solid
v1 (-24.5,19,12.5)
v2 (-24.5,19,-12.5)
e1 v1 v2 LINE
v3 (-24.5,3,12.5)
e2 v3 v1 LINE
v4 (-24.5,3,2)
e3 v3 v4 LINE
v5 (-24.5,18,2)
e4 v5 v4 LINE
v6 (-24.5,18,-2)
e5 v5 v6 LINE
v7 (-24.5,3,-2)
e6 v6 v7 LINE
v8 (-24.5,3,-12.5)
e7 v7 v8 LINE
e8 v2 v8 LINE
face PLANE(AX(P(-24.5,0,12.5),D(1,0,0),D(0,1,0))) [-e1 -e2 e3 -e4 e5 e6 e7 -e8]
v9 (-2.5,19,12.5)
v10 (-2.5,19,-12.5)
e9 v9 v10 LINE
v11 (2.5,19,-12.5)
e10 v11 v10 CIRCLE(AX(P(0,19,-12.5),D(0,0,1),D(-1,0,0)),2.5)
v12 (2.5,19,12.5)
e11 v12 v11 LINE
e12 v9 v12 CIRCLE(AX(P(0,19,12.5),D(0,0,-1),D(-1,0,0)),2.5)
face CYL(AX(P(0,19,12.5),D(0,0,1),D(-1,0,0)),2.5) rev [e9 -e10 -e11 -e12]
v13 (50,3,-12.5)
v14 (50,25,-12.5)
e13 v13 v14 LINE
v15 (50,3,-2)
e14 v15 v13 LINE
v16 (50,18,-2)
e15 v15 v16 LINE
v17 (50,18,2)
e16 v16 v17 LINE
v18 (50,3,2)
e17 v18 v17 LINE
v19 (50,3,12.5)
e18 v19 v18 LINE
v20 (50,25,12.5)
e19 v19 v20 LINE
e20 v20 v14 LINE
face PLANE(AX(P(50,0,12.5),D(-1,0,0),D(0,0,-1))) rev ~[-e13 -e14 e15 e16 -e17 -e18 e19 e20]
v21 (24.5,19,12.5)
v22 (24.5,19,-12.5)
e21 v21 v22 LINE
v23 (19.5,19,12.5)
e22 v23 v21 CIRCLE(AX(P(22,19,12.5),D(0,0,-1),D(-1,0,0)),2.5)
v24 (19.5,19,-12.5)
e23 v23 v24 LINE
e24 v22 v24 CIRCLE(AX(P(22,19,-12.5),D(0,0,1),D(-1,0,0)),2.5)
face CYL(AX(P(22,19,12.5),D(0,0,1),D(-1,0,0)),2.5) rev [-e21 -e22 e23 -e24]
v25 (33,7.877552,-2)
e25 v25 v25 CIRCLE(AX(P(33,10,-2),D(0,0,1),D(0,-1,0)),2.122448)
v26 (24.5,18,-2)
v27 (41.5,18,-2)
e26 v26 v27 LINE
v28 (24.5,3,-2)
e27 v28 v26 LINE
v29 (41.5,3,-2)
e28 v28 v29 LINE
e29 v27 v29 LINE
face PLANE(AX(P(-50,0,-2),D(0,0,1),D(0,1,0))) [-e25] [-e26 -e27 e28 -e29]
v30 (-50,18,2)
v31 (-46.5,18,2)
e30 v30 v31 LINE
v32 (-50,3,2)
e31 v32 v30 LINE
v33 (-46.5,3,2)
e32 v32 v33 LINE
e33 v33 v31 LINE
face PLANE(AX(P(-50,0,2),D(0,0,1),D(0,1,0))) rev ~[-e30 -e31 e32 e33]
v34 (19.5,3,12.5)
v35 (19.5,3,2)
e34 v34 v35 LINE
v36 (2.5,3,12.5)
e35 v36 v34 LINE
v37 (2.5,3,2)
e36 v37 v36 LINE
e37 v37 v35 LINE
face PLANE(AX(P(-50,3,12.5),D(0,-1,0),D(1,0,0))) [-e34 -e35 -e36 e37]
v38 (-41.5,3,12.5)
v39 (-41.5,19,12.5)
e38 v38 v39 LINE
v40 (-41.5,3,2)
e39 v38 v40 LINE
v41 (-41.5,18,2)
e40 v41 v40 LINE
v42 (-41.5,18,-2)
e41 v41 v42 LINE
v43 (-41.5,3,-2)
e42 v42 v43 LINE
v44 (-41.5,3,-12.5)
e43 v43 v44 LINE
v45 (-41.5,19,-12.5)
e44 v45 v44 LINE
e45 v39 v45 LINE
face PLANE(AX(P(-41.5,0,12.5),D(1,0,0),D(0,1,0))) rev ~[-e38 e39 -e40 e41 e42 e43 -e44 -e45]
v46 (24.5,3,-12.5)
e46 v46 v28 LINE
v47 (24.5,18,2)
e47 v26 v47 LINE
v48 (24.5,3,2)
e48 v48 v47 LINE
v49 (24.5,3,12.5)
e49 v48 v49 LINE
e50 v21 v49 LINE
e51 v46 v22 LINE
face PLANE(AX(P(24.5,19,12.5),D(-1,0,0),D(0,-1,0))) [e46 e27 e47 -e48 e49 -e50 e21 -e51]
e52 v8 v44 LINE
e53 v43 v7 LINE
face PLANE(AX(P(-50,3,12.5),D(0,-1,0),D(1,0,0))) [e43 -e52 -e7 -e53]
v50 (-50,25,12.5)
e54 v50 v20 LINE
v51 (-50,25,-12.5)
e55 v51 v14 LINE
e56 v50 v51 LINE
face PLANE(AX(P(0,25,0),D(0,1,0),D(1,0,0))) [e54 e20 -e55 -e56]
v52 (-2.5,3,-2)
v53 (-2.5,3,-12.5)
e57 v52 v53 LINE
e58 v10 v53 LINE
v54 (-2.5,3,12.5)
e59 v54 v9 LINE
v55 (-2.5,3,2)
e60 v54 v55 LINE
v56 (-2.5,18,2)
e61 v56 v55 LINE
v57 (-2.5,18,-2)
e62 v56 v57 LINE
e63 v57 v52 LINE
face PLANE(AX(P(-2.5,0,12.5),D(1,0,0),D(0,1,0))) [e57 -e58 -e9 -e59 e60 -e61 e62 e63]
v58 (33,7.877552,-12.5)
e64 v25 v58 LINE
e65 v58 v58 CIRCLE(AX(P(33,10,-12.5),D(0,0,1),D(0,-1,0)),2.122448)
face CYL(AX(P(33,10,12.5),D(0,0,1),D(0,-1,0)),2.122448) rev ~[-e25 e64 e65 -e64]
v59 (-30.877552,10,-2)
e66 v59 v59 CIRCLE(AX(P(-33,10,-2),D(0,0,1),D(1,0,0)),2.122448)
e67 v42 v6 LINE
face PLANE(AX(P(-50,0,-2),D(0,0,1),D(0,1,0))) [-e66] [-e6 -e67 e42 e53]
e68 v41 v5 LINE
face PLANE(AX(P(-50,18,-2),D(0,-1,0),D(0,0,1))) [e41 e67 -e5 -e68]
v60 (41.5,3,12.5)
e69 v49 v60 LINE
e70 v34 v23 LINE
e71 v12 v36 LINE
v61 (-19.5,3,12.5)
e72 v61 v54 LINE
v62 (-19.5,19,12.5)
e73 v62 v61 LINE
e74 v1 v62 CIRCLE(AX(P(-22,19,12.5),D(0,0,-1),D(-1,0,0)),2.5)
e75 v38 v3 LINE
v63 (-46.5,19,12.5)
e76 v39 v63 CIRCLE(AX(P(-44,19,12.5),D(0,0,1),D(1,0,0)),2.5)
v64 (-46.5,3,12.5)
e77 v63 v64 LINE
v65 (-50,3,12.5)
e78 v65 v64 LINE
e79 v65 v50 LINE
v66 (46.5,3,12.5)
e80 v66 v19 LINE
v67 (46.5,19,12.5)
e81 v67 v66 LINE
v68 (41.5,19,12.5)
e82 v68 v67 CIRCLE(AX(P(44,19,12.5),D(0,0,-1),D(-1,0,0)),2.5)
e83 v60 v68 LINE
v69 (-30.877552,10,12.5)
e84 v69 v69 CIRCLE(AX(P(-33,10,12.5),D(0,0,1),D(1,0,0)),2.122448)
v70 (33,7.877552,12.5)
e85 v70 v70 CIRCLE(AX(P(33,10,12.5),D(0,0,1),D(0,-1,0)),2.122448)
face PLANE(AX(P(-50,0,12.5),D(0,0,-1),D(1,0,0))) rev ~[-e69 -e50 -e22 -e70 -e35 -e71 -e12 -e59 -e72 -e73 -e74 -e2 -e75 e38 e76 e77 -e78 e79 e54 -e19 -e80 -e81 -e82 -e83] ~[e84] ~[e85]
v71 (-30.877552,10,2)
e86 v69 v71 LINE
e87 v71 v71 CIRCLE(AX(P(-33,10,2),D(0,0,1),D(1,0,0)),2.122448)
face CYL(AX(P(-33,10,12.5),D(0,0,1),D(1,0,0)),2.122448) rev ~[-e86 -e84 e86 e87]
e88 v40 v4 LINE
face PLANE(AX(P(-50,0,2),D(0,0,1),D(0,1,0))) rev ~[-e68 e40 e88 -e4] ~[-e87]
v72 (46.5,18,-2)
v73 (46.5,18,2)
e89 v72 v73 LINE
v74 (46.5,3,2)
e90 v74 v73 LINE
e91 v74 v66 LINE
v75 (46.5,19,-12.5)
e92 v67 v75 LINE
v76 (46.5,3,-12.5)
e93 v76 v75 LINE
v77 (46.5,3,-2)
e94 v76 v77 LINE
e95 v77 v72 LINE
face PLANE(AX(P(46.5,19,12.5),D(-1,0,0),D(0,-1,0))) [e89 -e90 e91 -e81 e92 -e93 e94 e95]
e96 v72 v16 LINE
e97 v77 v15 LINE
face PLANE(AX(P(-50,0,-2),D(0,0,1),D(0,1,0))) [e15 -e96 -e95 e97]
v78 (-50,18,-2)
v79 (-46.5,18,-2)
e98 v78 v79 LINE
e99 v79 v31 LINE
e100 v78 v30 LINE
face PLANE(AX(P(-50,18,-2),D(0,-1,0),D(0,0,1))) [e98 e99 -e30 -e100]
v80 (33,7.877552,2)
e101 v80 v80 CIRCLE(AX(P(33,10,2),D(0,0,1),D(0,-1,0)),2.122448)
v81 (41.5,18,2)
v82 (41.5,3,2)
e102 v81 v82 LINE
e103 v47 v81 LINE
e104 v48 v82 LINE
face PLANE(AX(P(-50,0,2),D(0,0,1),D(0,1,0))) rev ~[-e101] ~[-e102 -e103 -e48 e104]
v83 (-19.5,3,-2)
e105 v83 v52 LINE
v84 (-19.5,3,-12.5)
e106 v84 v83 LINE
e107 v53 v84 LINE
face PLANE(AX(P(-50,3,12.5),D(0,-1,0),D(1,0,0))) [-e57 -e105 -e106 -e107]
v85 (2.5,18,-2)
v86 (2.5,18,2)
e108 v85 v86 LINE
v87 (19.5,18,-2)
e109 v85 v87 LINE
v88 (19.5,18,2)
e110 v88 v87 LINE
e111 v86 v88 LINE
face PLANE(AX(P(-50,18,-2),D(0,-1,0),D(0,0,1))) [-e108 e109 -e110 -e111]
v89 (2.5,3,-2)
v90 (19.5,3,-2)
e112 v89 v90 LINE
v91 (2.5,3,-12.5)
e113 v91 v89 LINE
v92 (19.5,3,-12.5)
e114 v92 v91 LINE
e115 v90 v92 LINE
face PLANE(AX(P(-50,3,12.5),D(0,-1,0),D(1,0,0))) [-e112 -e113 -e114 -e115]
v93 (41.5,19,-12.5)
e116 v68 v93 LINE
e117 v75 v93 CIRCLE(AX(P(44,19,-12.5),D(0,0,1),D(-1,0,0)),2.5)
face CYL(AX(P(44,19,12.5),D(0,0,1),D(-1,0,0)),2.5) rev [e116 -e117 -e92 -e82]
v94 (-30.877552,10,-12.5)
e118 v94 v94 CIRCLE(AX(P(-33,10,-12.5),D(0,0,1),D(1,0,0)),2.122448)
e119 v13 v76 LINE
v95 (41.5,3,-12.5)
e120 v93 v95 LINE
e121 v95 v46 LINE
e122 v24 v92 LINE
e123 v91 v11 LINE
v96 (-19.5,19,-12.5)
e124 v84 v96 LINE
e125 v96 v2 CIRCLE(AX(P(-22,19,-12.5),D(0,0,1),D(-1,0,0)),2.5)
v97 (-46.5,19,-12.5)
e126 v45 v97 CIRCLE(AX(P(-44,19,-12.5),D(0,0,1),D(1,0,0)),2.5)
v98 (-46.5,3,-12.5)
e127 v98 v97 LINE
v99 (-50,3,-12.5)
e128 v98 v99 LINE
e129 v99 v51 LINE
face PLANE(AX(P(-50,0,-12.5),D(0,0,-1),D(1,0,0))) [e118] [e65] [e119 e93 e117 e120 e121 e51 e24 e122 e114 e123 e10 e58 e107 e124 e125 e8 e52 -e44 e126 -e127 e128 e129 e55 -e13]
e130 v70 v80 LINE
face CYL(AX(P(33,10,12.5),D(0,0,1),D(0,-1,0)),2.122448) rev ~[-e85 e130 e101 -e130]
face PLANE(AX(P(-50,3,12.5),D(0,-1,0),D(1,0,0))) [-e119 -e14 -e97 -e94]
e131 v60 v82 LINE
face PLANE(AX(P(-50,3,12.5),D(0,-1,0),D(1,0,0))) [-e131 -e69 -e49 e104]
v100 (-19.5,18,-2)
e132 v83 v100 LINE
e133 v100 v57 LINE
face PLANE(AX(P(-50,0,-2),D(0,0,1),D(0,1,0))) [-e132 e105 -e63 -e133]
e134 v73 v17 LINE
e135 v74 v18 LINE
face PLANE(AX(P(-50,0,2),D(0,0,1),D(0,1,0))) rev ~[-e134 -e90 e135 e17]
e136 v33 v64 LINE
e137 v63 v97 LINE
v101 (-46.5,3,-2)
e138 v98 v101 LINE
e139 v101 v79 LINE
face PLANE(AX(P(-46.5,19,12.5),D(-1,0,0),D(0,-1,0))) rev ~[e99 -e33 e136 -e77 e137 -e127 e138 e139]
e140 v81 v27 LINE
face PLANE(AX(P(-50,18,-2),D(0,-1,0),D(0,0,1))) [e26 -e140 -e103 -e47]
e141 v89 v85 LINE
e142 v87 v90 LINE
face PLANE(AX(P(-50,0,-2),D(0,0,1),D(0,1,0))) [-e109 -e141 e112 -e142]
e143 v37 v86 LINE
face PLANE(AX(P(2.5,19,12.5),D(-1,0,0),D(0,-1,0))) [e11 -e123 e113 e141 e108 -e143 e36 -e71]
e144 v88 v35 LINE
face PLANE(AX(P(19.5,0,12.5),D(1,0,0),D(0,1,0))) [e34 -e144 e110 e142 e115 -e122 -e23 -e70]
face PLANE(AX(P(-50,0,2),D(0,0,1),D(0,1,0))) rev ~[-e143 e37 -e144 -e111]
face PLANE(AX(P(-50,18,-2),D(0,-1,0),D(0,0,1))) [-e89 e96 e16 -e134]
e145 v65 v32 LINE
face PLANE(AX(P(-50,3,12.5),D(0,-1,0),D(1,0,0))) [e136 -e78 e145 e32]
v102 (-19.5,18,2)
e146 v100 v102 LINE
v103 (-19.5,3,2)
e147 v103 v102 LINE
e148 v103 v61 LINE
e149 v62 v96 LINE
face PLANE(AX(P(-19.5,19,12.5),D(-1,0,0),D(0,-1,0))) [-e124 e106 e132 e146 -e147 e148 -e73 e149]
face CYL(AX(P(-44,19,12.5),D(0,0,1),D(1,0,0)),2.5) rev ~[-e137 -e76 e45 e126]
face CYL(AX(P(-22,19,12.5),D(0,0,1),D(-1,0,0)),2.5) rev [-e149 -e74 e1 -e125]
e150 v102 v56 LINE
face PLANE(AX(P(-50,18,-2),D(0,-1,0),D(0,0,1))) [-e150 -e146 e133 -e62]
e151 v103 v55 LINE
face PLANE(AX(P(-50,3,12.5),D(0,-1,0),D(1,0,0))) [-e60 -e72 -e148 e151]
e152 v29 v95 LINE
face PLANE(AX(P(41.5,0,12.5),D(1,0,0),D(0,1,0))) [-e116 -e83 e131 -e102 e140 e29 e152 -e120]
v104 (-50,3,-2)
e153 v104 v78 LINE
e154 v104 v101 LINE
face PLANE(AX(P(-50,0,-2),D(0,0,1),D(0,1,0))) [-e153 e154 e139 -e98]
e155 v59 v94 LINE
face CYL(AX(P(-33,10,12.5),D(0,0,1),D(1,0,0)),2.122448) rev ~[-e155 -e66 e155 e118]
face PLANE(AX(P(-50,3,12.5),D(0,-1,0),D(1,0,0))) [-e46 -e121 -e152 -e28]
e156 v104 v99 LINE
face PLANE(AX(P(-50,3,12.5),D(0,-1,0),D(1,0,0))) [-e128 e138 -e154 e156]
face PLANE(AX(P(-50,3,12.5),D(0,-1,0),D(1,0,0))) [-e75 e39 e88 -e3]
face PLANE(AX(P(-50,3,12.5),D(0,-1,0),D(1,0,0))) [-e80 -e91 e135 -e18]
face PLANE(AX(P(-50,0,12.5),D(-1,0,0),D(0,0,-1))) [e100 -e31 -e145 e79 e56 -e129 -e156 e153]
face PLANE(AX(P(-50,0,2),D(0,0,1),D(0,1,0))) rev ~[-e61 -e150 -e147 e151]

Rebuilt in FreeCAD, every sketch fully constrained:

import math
import FreeCAD as App
import Part
import Sketcher
Q = App.Units.Quantity


def add_polygon(sketch, points):
    """Adds a closed chain of lines whose ends are joined by coincident constraints."""
    first, n = sketch.GeometryCount, len(points)
    for a, b in zip(points, points[1:] + points[:1]):
        sketch.addGeometry(Part.LineSegment(App.Vector(*a, 0), App.Vector(*b, 0)), False)
    for i in range(n):
        sketch.addConstraint(Sketcher.Constraint("Coincident", first + i, 2, first + (i + 1) % n, 1))

doc = App.newDocument("Part")
body = doc.addObject("PartDesign::Body", "Body")

# Sketch on XZ plane
sketch1 = body.newObject("Sketcher::SketchObject", "Sketch")
sketch1.AttachmentSupport = (doc.getObject("XZ_Plane"), [""])
sketch1.MapMode = "FlatFace"
add_polygon(sketch1, [(-50, -12), (-50, 12), (50, 12), (50, -12)])  # lines 0-3
sketch1.addConstraint(Sketcher.Constraint("Vertical", 0))
sketch1.addConstraint(Sketcher.Constraint("Horizontal", 1))
sketch1.addConstraint(Sketcher.Constraint("Vertical", 2))
sketch1.addConstraint(Sketcher.Constraint("Horizontal", 3))
sketch1.addConstraint(Sketcher.Constraint("Symmetric", 0, 2, 2, 2, -1, 1))
sketch1.addConstraint(Sketcher.Constraint("DistanceX", 1, 1, 1, 2, Q("100 mm")))
sketch1.addConstraint(Sketcher.Constraint("DistanceY", 0, 1, 0, 2, Q("25 mm")))
pad1 = body.newObject("PartDesign::Pad", "Pad")
pad1.Profile = sketch1
pad1.Length = 25
pad1.Reversed = True

# Sketch on XY plane
sketch2 = body.newObject("Sketcher::SketchObject", "Sketch001")
sketch2.AttachmentSupport = (doc.getObject("XY_Plane"), [""])
sketch2.MapMode = "FlatFace"
sketch2.AttachmentOffset = App.Placement(App.Vector(0, 0, 12.5), App.Rotation())
sketch2.addGeometry(Part.LineSegment(App.Vector(-19.5, 0, 0), App.Vector(-19.5, 19, 0)), False)
sketch2.addGeometry(Part.ArcOfCircle(Part.Circle(App.Vector(-22, 19, 0), App.Vector(0, 0, 1), 2.5), math.radians(0), math.radians(180)), False)
sketch2.addGeometry(Part.LineSegment(App.Vector(-24.5, 19, 0), App.Vector(-24.5, 0, 0)), False)
sketch2.addGeometry(Part.LineSegment(App.Vector(-24.5, 0, 0), App.Vector(-19.5, 0, 0)), False)
sketch2.addGeometry(Part.LineSegment(App.Vector(-46.5, 19, 0), App.Vector(-46.5, 0, 0)), False)
sketch2.addGeometry(Part.LineSegment(App.Vector(-46.5, 0, 0), App.Vector(-41.5, 0, 0)), False)
sketch2.addGeometry(Part.LineSegment(App.Vector(-41.5, 0, 0), App.Vector(-41.5, 19, 0)), False)
sketch2.addGeometry(Part.ArcOfCircle(Part.Circle(App.Vector(-44, 19, 0), App.Vector(0, 0, 1), 2.5), math.radians(0), math.radians(180)), False)
sketch2.addGeometry(Part.LineSegment(App.Vector(2.5, 0, 0), App.Vector(2.5, 19, 0)), False)
sketch2.addGeometry(Part.ArcOfCircle(Part.Circle(App.Vector(0, 19, 0), App.Vector(0, 0, 1), 2.5), math.radians(0), math.radians(180)), False)
sketch2.addGeometry(Part.LineSegment(App.Vector(-2.5, 19, 0), App.Vector(-2.5, 0, 0)), False)
sketch2.addGeometry(Part.LineSegment(App.Vector(-2.5, 0, 0), App.Vector(2.5, 0, 0)), False)
sketch2.addGeometry(Part.LineSegment(App.Vector(24.5, 0, 0), App.Vector(24.5, 19, 0)), False)
sketch2.addGeometry(Part.ArcOfCircle(Part.Circle(App.Vector(22, 19, 0), App.Vector(0, 0, 1), 2.5), math.radians(0), math.radians(180)), False)
sketch2.addGeometry(Part.LineSegment(App.Vector(19.5, 19, 0), App.Vector(19.5, 0, 0)), False)
sketch2.addGeometry(Part.LineSegment(App.Vector(19.5, 0, 0), App.Vector(24.5, 0, 0)), False)
sketch2.addGeometry(Part.LineSegment(App.Vector(46.5, 0, 0), App.Vector(46.5, 19, 0)), False)
sketch2.addGeometry(Part.ArcOfCircle(Part.Circle(App.Vector(44, 19, 0), App.Vector(0, 0, 1), 2.5), math.radians(0), math.radians(180)), False)
sketch2.addGeometry(Part.LineSegment(App.Vector(41.5, 19, 0), App.Vector(41.5, 0, 0)), False)
sketch2.addGeometry(Part.LineSegment(App.Vector(41.5, 0, 0), App.Vector(46.5, 0, 0)), False)
sketch2.addConstraint(Sketcher.Constraint("Tangent", 0, 2, 1, 1))
sketch2.addConstraint(Sketcher.Constraint("Tangent", 1, 2, 2, 1))
sketch2.addConstraint(Sketcher.Constraint("Coincident", 2, 2, 3, 1))
sketch2.addConstraint(Sketcher.Constraint("Coincident", 3, 2, 0, 1))
sketch2.addConstraint(Sketcher.Constraint("Coincident", 4, 2, 5, 1))
sketch2.addConstraint(Sketcher.Constraint("Coincident", 5, 2, 6, 1))
sketch2.addConstraint(Sketcher.Constraint("Tangent", 6, 2, 7, 1))
sketch2.addConstraint(Sketcher.Constraint("Tangent", 7, 2, 4, 1))
sketch2.addConstraint(Sketcher.Constraint("Tangent", 8, 2, 9, 1))
sketch2.addConstraint(Sketcher.Constraint("Tangent", 9, 2, 10, 1))
sketch2.addConstraint(Sketcher.Constraint("Coincident", 10, 2, 11, 1))
sketch2.addConstraint(Sketcher.Constraint("Coincident", 11, 2, 8, 1))
sketch2.addConstraint(Sketcher.Constraint("Tangent", 12, 2, 13, 1))
sketch2.addConstraint(Sketcher.Constraint("Tangent", 13, 2, 14, 1))
sketch2.addConstraint(Sketcher.Constraint("Coincident", 14, 2, 15, 1))
sketch2.addConstraint(Sketcher.Constraint("Coincident", 15, 2, 12, 1))
sketch2.addConstraint(Sketcher.Constraint("Tangent", 16, 2, 17, 1))
sketch2.addConstraint(Sketcher.Constraint("Tangent", 17, 2, 18, 1))
sketch2.addConstraint(Sketcher.Constraint("Coincident", 18, 2, 19, 1))
sketch2.addConstraint(Sketcher.Constraint("Coincident", 19, 2, 16, 1))
sketch2.addConstraint(Sketcher.Constraint("Vertical", 0))
sketch2.addConstraint(Sketcher.Constraint("Vertical", 2))
sketch2.addConstraint(Sketcher.Constraint("Horizontal", 3))
sketch2.addConstraint(Sketcher.Constraint("Vertical", 4))
sketch2.addConstraint(Sketcher.Constraint("Horizontal", 5))
sketch2.addConstraint(Sketcher.Constraint("Vertical", 6))
sketch2.addConstraint(Sketcher.Constraint("Vertical", 8))
sketch2.addConstraint(Sketcher.Constraint("Vertical", 10))
sketch2.addConstraint(Sketcher.Constraint("Horizontal", 11))
sketch2.addConstraint(Sketcher.Constraint("Vertical", 12))
sketch2.addConstraint(Sketcher.Constraint("Vertical", 14))
sketch2.addConstraint(Sketcher.Constraint("Horizontal", 15))
sketch2.addConstraint(Sketcher.Constraint("Vertical", 16))
sketch2.addConstraint(Sketcher.Constraint("Vertical", 18))
sketch2.addConstraint(Sketcher.Constraint("Horizontal", 19))
sketch2.addConstraint(Sketcher.Constraint("Equal", 1, 7))
sketch2.addConstraint(Sketcher.Constraint("Equal", 7, 9))
sketch2.addConstraint(Sketcher.Constraint("Equal", 9, 13))
sketch2.addConstraint(Sketcher.Constraint("Equal", 13, 17))
sketch2.addConstraint(Sketcher.Constraint("Symmetric", 10, 2, 11, 2, -1, 1))
sketch2.addConstraint(Sketcher.Constraint("Symmetric", 3, 2, 14, 2, -1, 1))
sketch2.addConstraint(Sketcher.Constraint("Symmetric", 5, 2, 18, 2, -1, 1))
sketch2.addConstraint(Sketcher.Constraint("PointOnObject", 2, 2, -1))
sketch2.addConstraint(Sketcher.Constraint("PointOnObject", 4, 2, -1))
sketch2.addConstraint(Sketcher.Constraint("Horizontal", 1, 3, 7, 3))
sketch2.addConstraint(Sketcher.Constraint("Horizontal", 7, 3, 9, 3))
sketch2.addConstraint(Sketcher.Constraint("Horizontal", 9, 3, 13, 3))
sketch2.addConstraint(Sketcher.Constraint("Horizontal", 13, 3, 17, 3))
sketch2.addConstraint(Sketcher.Constraint("Radius", 1, Q("2.5 mm")))
sketch2.addConstraint(Sketcher.Constraint("DistanceY", 0, 1, 0, 2, Q("19 mm")))
sketch2.addConstraint(Sketcher.Constraint("DistanceX", 1, 3, -1, 1, Q("22 mm")))
sketch2.addConstraint(Sketcher.Constraint("DistanceX", 7, 3, -1, 1, Q("44 mm")))
pocket1 = body.newObject("PartDesign::Pocket", "Pocket")
pocket1.Profile = sketch2
pocket1.Length = 48

# Sketch on YZ plane
sketch3 = body.newObject("Sketcher::SketchObject", "Sketch002")
sketch3.AttachmentSupport = (doc.getObject("YZ_Plane"), [""])
sketch3.MapMode = "FlatFace"
sketch3.AttachmentOffset = App.Placement(App.Vector(0, 0, -50), App.Rotation())
add_polygon(sketch3, [(18, -2), (0, -2), (0, 2), (18, 2)])  # lines 0-3
sketch3.addConstraint(Sketcher.Constraint("Horizontal", 0))
sketch3.addConstraint(Sketcher.Constraint("Vertical", 1))
sketch3.addConstraint(Sketcher.Constraint("Horizontal", 2))
sketch3.addConstraint(Sketcher.Constraint("Vertical", 3))
sketch3.addConstraint(Sketcher.Constraint("Symmetric", 0, 2, 1, 2, -1, 1))
sketch3.addConstraint(Sketcher.Constraint("DistanceX", 0, 2, 0, 1, Q("18 mm")))
sketch3.addConstraint(Sketcher.Constraint("DistanceY", 1, 1, 1, 2, Q("4 mm")))
pocket2 = body.newObject("PartDesign::Pocket", "Pocket001")
pocket2.Profile = sketch3
pocket2.Type = "ThroughAll"
pocket2.Reversed = True

# Sketch on XY plane
sketch4 = body.newObject("Sketcher::SketchObject", "Sketch003")
sketch4.AttachmentSupport = (doc.getObject("XY_Plane"), [""])
sketch4.MapMode = "FlatFace"
sketch4.AttachmentOffset = App.Placement(App.Vector(0, 0, 12.5), App.Rotation())
sketch4.addGeometry(Part.Circle(App.Vector(-33, 10, 0), App.Vector(0, 0, 1), 2.1), False)
sketch4.addGeometry(Part.Circle(App.Vector(33, 10, 0), App.Vector(0, 0, 1), 2.1), False)
sketch4.addConstraint(Sketcher.Constraint("Equal", 0, 1))
sketch4.addConstraint(Sketcher.Constraint("Symmetric", 0, 3, 1, 3, -2))
sketch4.addConstraint(Sketcher.Constraint("DistanceX", 0, 3, -1, 1, Q("33 mm")))
sketch4.addConstraint(Sketcher.Constraint("DistanceY", -1, 1, 0, 3, Q("10 mm")))
sketch4.addConstraint(Sketcher.Constraint("Diameter", 0, Q("4.244897 mm")))
pocket3 = body.newObject("PartDesign::Pocket", "Pocket002")
pocket3.Profile = sketch4
pocket3.Type = "ThroughAll"

# Sketch on XY plane
sketch5 = body.newObject("Sketcher::SketchObject", "Sketch004")
sketch5.AttachmentSupport = (doc.getObject("XY_Plane"), [""])
sketch5.MapMode = "FlatFace"
sketch5.AttachmentOffset = App.Placement(App.Vector(0, 0, 12.5), App.Rotation())
add_polygon(sketch5, [(-50, 3), (-50, 0), (50, 0), (50, 3)])  # lines 0-3
sketch5.addConstraint(Sketcher.Constraint("Vertical", 0))
sketch5.addConstraint(Sketcher.Constraint("Horizontal", 1))
sketch5.addConstraint(Sketcher.Constraint("Vertical", 2))
sketch5.addConstraint(Sketcher.Constraint("Horizontal", 3))
sketch5.addConstraint(Sketcher.Constraint("Symmetric", 0, 2, 1, 2, -1, 1))
sketch5.addConstraint(Sketcher.Constraint("DistanceX", 1, 1, 1, 2, Q("100 mm")))
sketch5.addConstraint(Sketcher.Constraint("DistanceY", 0, 2, 0, 1, Q("3 mm")))
pocket4 = body.newObject("PartDesign::Pocket", "Pocket003")
pocket4.Profile = sketch5
pocket4.Type = "ThroughAll"

doc.recompute()
